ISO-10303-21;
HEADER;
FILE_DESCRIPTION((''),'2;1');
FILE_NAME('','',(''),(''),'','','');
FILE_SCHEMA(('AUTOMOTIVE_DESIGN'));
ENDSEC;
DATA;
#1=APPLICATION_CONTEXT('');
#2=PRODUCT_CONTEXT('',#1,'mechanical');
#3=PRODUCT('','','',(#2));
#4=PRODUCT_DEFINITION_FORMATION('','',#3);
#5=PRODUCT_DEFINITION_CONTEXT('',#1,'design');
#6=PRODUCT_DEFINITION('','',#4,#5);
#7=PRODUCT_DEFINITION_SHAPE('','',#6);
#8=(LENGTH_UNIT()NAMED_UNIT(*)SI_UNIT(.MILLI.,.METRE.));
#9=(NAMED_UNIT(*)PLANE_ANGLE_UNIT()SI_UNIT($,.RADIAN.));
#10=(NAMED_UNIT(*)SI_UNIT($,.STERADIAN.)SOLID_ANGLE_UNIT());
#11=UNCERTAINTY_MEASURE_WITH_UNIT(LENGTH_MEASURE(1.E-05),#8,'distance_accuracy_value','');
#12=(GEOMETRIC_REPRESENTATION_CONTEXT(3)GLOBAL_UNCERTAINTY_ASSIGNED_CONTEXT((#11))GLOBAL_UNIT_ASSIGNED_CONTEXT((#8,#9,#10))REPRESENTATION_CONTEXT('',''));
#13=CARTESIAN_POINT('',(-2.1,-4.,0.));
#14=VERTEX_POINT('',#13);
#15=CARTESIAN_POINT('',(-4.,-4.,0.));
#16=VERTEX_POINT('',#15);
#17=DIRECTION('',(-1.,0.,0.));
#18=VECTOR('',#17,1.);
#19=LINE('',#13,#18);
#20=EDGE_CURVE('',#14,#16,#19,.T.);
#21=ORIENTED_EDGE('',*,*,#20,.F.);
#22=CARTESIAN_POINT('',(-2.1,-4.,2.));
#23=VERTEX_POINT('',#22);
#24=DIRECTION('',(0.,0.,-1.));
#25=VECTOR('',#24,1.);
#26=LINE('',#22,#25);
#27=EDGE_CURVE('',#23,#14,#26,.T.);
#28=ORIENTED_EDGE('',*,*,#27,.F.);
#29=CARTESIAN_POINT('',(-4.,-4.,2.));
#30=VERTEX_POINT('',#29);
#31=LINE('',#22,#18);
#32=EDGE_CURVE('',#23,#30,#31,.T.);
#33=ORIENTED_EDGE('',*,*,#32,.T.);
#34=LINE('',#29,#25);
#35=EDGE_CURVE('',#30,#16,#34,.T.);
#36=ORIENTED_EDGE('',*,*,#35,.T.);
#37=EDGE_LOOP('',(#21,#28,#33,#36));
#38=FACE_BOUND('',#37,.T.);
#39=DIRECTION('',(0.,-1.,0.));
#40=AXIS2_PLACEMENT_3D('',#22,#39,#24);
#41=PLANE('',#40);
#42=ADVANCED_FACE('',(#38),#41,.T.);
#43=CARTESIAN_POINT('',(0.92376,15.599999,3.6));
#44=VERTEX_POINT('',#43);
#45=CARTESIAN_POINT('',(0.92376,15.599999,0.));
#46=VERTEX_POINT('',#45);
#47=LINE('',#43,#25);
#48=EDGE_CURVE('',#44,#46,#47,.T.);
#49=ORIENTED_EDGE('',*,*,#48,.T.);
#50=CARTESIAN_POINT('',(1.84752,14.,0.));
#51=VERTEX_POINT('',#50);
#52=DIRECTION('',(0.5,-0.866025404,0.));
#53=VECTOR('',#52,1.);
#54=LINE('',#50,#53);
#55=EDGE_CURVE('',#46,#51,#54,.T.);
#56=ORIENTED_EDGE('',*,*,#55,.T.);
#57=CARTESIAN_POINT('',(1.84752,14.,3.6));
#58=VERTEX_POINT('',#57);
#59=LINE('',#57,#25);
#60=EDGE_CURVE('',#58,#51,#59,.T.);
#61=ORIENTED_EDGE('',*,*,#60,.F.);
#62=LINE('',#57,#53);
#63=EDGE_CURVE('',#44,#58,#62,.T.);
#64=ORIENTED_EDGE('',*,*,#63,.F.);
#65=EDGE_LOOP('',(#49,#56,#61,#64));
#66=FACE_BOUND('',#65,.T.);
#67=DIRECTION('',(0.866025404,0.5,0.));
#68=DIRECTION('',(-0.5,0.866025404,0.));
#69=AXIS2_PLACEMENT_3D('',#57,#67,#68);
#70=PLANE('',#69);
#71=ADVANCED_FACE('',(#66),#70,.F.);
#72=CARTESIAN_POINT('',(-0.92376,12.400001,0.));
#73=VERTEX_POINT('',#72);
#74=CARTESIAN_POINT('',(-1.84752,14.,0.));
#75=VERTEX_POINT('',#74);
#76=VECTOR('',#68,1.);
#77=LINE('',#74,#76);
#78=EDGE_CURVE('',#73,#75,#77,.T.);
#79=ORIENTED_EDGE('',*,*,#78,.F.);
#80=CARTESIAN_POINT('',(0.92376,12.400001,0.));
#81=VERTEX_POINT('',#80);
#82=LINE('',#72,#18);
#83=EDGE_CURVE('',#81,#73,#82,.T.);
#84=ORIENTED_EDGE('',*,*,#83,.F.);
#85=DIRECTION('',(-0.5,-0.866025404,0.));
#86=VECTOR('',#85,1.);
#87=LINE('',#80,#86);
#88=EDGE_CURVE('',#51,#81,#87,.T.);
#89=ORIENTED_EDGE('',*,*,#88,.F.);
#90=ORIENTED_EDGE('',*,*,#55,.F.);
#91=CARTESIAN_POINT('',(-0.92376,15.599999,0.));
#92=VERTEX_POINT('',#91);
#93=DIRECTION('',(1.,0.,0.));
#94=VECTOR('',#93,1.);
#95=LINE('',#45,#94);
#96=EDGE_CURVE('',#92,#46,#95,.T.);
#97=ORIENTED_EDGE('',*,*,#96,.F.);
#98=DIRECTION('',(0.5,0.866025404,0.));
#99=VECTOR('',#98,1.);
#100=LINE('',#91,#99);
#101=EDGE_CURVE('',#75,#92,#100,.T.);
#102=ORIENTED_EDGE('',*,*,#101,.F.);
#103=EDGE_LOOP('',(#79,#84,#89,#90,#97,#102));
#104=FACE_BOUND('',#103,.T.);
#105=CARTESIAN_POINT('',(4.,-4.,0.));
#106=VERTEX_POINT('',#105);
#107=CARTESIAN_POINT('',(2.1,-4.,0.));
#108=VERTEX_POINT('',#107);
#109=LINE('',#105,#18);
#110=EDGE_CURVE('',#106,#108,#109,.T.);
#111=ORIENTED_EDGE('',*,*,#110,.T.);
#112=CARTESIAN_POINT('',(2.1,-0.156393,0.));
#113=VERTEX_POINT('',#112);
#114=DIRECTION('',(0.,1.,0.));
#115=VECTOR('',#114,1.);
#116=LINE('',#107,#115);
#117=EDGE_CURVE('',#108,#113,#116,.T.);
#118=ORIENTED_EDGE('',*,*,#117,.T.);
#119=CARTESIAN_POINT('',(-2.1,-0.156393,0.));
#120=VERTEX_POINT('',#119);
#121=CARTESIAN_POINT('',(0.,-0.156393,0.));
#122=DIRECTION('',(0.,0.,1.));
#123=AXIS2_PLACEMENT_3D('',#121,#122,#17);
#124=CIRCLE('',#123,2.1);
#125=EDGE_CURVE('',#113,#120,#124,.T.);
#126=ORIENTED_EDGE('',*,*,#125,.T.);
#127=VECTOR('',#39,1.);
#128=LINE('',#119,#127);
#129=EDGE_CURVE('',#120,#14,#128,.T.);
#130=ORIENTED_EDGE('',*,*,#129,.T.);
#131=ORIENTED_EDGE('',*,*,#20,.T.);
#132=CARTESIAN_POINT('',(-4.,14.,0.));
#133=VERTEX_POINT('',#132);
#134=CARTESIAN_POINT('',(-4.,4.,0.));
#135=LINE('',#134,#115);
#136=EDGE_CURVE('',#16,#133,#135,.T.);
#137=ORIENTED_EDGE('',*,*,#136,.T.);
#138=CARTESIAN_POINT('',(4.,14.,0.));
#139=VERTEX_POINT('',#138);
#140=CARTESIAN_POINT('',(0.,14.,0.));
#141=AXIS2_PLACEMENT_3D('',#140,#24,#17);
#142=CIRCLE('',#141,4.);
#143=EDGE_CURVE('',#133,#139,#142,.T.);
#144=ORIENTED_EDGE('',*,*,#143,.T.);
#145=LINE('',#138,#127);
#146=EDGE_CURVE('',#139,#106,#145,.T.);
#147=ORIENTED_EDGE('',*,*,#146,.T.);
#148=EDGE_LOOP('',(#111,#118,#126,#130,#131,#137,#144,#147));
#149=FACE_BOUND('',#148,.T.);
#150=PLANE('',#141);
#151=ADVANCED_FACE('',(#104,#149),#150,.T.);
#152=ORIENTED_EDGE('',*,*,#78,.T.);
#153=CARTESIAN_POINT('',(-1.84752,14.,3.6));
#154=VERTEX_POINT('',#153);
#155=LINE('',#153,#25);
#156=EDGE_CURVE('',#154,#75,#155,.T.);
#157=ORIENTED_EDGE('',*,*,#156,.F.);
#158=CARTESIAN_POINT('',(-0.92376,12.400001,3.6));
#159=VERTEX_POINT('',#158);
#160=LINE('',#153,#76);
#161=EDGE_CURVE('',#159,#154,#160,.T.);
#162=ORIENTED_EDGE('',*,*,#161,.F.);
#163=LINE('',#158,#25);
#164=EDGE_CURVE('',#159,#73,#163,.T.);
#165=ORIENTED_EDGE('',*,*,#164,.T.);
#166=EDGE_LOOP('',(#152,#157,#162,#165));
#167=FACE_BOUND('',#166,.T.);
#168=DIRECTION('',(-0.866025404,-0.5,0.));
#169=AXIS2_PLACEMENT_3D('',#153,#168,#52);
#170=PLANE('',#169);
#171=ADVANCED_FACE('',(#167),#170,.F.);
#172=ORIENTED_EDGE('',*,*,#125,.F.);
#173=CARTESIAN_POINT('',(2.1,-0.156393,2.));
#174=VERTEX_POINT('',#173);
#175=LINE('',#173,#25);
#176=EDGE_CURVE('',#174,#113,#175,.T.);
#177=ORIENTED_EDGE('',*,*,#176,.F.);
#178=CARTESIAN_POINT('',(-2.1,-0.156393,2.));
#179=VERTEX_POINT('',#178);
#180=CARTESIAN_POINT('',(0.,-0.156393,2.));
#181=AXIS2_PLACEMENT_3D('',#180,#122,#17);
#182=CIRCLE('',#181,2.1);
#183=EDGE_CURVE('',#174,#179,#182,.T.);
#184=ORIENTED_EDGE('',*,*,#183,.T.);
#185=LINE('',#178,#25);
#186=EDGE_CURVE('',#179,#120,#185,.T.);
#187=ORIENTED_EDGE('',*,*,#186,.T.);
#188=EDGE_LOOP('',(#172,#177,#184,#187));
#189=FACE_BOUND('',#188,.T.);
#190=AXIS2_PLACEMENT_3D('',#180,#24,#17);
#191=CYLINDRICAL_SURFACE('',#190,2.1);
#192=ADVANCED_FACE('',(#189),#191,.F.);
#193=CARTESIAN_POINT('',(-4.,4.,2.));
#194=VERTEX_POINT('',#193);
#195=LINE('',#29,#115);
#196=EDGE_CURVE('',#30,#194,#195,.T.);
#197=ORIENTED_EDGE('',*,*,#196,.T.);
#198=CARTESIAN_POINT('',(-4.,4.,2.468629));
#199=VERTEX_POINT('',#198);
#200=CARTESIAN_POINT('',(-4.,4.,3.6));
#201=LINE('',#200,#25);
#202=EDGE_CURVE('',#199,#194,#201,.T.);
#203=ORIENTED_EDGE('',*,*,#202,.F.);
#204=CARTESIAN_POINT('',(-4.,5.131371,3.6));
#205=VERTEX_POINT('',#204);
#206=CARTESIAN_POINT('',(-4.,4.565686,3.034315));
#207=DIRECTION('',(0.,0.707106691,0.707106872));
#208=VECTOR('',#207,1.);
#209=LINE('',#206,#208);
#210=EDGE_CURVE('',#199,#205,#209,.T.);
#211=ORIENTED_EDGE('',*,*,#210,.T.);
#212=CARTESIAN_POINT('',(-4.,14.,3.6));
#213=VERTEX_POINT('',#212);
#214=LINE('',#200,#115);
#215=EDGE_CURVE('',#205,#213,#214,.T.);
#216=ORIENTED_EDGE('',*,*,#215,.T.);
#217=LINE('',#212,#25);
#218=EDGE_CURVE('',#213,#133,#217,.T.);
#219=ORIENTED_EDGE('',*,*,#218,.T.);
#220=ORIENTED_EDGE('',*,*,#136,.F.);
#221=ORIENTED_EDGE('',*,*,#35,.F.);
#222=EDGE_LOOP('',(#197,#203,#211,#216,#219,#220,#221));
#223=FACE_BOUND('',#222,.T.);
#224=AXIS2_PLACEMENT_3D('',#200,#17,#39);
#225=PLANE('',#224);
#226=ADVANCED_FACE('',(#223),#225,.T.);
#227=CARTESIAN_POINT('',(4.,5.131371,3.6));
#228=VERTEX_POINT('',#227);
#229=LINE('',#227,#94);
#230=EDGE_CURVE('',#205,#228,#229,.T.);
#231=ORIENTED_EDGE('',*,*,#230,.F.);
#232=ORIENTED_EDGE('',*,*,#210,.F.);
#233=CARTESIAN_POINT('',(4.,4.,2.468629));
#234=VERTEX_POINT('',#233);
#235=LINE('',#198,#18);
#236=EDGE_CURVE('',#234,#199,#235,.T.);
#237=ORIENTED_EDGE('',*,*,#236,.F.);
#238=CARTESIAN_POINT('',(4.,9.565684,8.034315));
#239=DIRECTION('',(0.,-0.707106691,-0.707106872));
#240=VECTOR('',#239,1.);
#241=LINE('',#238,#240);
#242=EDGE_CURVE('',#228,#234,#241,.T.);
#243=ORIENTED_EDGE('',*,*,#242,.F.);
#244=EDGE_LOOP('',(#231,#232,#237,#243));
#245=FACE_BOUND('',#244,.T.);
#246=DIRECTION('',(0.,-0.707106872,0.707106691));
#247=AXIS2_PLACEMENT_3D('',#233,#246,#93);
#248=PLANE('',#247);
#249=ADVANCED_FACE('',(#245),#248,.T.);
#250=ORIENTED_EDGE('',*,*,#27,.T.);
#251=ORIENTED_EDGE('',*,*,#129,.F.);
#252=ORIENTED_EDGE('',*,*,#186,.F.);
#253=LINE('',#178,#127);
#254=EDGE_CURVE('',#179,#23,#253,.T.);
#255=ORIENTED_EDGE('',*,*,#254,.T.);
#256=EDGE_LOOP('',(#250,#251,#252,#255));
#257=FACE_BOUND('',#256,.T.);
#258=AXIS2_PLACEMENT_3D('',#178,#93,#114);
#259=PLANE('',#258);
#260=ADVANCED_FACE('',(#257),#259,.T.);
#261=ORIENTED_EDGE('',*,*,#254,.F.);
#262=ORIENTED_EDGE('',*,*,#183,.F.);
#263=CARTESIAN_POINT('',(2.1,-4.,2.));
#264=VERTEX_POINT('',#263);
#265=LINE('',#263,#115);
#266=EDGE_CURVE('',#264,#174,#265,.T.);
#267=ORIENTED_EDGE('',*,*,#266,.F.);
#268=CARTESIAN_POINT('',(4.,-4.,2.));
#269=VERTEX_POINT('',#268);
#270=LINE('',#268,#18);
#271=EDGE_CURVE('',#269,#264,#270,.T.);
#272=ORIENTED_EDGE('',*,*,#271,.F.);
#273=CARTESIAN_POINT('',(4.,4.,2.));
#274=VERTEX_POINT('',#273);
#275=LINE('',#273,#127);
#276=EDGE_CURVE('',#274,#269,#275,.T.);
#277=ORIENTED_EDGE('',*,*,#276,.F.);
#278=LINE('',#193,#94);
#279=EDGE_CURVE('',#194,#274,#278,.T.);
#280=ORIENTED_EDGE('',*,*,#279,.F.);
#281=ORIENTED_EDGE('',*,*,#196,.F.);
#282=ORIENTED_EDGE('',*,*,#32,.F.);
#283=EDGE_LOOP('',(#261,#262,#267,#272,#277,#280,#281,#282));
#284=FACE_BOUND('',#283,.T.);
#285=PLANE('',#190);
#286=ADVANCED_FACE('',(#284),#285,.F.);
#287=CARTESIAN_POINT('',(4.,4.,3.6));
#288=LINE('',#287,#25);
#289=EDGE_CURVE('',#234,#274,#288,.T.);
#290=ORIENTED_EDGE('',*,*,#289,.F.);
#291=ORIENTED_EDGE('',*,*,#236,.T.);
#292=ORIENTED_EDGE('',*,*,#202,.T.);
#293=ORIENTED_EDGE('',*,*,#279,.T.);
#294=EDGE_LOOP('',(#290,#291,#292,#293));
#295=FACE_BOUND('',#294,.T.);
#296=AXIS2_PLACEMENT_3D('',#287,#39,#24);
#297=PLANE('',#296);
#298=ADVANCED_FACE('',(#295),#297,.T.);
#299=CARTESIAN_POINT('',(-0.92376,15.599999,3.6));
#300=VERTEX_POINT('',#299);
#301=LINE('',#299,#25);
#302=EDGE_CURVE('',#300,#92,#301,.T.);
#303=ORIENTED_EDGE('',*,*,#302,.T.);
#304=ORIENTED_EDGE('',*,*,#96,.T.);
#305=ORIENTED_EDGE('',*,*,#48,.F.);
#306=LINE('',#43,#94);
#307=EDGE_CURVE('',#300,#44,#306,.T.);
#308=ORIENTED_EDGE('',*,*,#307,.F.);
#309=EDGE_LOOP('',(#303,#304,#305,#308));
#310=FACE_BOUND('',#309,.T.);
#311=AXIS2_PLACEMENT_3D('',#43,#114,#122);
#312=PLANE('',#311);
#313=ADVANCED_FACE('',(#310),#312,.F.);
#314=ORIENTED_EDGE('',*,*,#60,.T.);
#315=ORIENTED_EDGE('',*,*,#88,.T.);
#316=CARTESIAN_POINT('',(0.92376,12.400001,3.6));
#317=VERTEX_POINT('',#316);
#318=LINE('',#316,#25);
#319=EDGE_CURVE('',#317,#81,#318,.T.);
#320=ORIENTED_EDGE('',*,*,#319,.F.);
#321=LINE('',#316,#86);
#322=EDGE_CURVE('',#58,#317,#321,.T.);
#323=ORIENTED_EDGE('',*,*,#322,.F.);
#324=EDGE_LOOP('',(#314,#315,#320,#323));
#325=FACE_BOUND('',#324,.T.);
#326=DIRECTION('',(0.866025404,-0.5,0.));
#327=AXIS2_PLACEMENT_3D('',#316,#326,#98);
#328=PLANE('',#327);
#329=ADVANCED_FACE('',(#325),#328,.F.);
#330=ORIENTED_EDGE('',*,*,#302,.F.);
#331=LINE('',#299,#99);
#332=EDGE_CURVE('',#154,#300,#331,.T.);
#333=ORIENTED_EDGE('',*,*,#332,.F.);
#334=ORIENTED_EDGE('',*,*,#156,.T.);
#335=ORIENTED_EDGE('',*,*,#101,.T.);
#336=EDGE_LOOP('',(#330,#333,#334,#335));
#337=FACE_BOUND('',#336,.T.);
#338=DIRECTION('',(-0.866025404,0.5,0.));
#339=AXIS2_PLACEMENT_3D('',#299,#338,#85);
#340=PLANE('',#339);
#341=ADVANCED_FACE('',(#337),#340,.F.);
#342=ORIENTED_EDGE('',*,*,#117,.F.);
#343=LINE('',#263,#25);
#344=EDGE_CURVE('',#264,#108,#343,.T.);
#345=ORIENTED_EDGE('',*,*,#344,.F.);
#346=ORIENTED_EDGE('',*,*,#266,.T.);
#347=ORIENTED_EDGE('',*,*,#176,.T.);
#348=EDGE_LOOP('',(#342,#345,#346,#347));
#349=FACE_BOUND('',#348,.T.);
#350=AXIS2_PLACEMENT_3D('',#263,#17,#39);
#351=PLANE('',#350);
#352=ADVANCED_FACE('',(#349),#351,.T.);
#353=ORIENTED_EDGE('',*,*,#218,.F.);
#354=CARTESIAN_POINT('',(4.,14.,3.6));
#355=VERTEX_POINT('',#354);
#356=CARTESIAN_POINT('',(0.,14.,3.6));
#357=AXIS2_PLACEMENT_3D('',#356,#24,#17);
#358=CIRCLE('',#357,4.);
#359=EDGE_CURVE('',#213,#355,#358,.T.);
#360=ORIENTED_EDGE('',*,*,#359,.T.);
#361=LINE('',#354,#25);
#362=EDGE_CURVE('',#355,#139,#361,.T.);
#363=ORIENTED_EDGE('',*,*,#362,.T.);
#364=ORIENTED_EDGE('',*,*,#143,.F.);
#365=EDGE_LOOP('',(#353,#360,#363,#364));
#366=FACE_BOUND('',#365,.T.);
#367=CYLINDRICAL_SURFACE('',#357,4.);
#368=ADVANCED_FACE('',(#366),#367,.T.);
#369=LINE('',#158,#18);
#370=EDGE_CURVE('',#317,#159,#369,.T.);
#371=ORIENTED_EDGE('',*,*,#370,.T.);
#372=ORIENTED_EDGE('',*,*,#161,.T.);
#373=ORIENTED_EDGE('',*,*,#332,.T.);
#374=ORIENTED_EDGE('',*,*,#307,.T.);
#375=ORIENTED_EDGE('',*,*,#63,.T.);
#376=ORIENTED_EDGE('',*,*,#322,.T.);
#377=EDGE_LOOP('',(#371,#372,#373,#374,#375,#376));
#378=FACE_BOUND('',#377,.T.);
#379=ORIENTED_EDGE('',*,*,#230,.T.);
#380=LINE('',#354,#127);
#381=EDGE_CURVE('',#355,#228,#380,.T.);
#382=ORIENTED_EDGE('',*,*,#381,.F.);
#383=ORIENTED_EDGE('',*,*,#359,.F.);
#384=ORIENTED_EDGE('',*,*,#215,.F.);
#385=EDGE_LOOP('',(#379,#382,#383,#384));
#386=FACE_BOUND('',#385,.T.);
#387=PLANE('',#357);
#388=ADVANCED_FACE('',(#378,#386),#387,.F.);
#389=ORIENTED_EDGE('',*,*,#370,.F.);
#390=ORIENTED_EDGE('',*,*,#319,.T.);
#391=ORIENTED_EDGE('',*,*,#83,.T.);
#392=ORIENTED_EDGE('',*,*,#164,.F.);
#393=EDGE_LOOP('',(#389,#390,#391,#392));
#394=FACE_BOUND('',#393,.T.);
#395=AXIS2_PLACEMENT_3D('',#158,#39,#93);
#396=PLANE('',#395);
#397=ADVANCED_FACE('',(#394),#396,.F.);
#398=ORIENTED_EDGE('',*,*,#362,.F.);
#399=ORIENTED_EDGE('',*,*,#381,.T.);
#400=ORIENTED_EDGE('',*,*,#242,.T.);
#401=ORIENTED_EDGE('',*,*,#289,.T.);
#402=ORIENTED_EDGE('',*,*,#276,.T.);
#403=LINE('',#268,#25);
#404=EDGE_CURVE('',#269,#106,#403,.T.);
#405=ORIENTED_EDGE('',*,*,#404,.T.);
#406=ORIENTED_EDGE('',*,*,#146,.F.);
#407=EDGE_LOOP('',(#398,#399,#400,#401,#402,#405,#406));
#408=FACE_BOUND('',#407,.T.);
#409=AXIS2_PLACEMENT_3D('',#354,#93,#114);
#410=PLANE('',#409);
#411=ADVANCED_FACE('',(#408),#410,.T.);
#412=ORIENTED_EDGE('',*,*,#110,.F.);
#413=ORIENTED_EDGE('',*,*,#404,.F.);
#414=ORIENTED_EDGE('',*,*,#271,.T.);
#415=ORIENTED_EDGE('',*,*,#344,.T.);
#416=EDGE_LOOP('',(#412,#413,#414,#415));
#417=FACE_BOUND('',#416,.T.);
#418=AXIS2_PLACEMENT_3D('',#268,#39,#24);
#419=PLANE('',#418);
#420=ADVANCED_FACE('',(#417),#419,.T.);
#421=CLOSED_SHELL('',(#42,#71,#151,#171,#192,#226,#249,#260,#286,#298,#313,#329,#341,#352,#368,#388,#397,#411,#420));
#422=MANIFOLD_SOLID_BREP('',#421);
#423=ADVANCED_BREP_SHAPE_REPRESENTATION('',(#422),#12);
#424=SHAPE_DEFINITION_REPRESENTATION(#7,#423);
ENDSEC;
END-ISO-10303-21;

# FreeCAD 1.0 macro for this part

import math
import FreeCAD as App
import Part
import Sketcher
from FreeCAD import Vector
Q = App.Units.Quantity


def edges_at(feature, points):
    """Names of the edges that pass closest to the given points."""
    edges = feature.Shape.Edges
    near = lambda p: min(range(len(edges)), key=lambda i: edges[i].distToShape(Part.Vertex(*p))[0])
    return sorted({f"Edge{near(p) + 1}" for p in points})


def add_polygon(sketch, points):
    """Adds a closed chain of lines whose ends are joined by coincident constraints."""
    first, n = sketch.GeometryCount, len(points)
    for a, b in zip(points, points[1:] + points[:1]):
        sketch.addGeometry(Part.LineSegment(App.Vector(*a, 0), App.Vector(*b, 0)), False)
    for i in range(n):
        sketch.addConstraint(Sketcher.Constraint("Coincident", first + i, 2, first + (i + 1) % n, 1))

doc = App.newDocument("Part")
body = doc.addObject("PartDesign::Body", "Body")

# Sketch on XY plane
sketch1 = doc.addObject("Sketcher::SketchObject", "Sketch")
body.addObject(sketch1)
sketch1.AttachmentSupport = (doc.XY_Plane, [""])
sketch1.MapMode = "FlatFace"
sketch1.addGeometry(Part.LineSegment(Vector(4, 14, 0), Vector(4, 4, 0)), False)  # 0
sketch1.addGeometry(Part.LineSegment(Vector(4, 4, 0), Vector(-4, 4, 0)), False)  # 1
sketch1.addGeometry(Part.LineSegment(Vector(-4, 4, 0), Vector(-4, 14, 0)), False)  # 2
sketch1.addGeometry(Part.ArcOfCircle(Part.Circle(Vector(0, 14, 0), Vector(0, 0, 1), 4), math.radians(0), math.radians(180)), False)  # 3
add_polygon(sketch1, [(-0.9, 12.4), (0.9, 12.4), (1.8, 14), (0.9, 15.6), (-0.9, 15.6), (-1.8, 14)])  # lines 4-9
sketch1.addConstraint(Sketcher.Constraint("Coincident", 0, 2, 1, 1))
sketch1.addConstraint(Sketcher.Constraint("Coincident", 1, 2, 2, 1))
sketch1.addConstraint(Sketcher.Constraint("Tangent", 2, 2, 3, 2))
sketch1.addConstraint(Sketcher.Constraint("Tangent", 3, 1, 0, 1))
sketch1.addConstraint(Sketcher.Constraint("Vertical", 0))
sketch1.addConstraint(Sketcher.Constraint("Horizontal", 1))
sketch1.addConstraint(Sketcher.Constraint("Vertical", 2))
sketch1.addConstraint(Sketcher.Constraint("Horizontal", 4))
sketch1.addConstraint(Sketcher.Constraint("Horizontal", 7))
sketch1.addConstraint(Sketcher.Constraint("Symmetric", 5, 2, 8, 2, -2))
sketch1.addConstraint(Sketcher.Constraint("PointOnObject", 3, 3, -2))
sketch1.addConstraint(Sketcher.Constraint("Parallel", 5, 8))
sketch1.addConstraint(Sketcher.Constraint("Parallel", 6, 9))
sketch1.addConstraint(Sketcher.Constraint("Horizontal", 3, 1, 5, 2))
sketch1.addConstraint(Sketcher.Constraint("Vertical", 4, 2, 6, 2))
sketch1.addConstraint(Sketcher.Constraint("Vertical", 7, 2, 9, 2))
sketch1.addConstraint(Sketcher.Constraint("Radius", 3, Q("4 mm")))
sketch1.addConstraint(Sketcher.Constraint("DistanceY", 0, 2, 0, 1, Q("10 mm")))
sketch1.addConstraint(Sketcher.Constraint("Angle", 5, Q("60 deg")))
sketch1.addConstraint(Sketcher.Constraint("DistanceY", -1, 1, 3, 3, Q("14 mm")))
sketch1.addConstraint(Sketcher.Constraint("DistanceY", -1, 1, 4, 2, Q("12.400001 mm")))
sketch1.addConstraint(Sketcher.Constraint("DistanceX", 4, 1, 4, 2, Q("1.84752 mm")))
pad1 = doc.addObject("PartDesign::Pad", "Pad")
body.addObject(pad1)
pad1.Profile = sketch1
pad1.Length = 3.6
doc.recompute()

chamfer = doc.addObject("PartDesign::Chamfer", "Chamfer")
body.addObject(chamfer)
chamfer.Base = (pad1, edges_at(pad1, [(0, 4, 3.6)]))
chamfer.ChamferType = "Two distances"
chamfer.Size = 1.131371
chamfer.Size2 = 1.131371

# Sketch on XY plane
sketch2 = doc.addObject("Sketcher::SketchObject", "Sketch001")
body.addObject(sketch2)
sketch2.AttachmentSupport = (doc.XY_Plane, [""])
sketch2.MapMode = "FlatFace"
sketch2.addGeometry(Part.LineSegment(Vector(4, -4, 0), Vector(2.1, -4, 0)), False)
sketch2.addGeometry(Part.LineSegment(Vector(2.1, -4, 0), Vector(2.1, -0.2, 0)), False)
sketch2.addGeometry(Part.ArcOfCircle(Part.Circle(Vector(0, -0.2, 0), Vector(0, 0, 1), 2.1), math.radians(0), math.radians(180)), False)
sketch2.addGeometry(Part.LineSegment(Vector(-2.1, -0.2, 0), Vector(-2.1, -4, 0)), False)
sketch2.addGeometry(Part.LineSegment(Vector(-2.1, -4, 0), Vector(-4, -4, 0)), False)
sketch2.addGeometry(Part.LineSegment(Vector(-4, -4, 0), Vector(-4, 4, 0)), False)
sketch2.addGeometry(Part.LineSegment(Vector(-4, 4, 0), Vector(4, 4, 0)), False)
sketch2.addGeometry(Part.LineSegment(Vector(4, 4, 0), Vector(4, -4, 0)), False)
sketch2.addConstraint(Sketcher.Constraint("Coincident", 0, 2, 1, 1))
sketch2.addConstraint(Sketcher.Constraint("Tangent", 1, 2, 2, 1))
sketch2.addConstraint(Sketcher.Constraint("Tangent", 2, 2, 3, 1))
sketch2.addConstraint(Sketcher.Constraint("Coincident", 3, 2, 4, 1))
sketch2.addConstraint(Sketcher.Constraint("Coincident", 4, 2, 5, 1))
sketch2.addConstraint(Sketcher.Constraint("Coincident", 5, 2, 6, 1))
sketch2.addConstraint(Sketcher.Constraint("Coincident", 6, 2, 7, 1))
sketch2.addConstraint(Sketcher.Constraint("Coincident", 7, 2, 0, 1))
sketch2.addConstraint(Sketcher.Constraint("Horizontal", 0))
sketch2.addConstraint(Sketcher.Constraint("Vertical", 1))
sketch2.addConstraint(Sketcher.Constraint("Vertical", 3))
sketch2.addConstraint(Sketcher.Constraint("Horizontal", 4))
sketch2.addConstraint(Sketcher.Constraint("Vertical", 5))
sketch2.addConstraint(Sketcher.Constraint("Horizontal", 6))
sketch2.addConstraint(Sketcher.Constraint("Vertical", 7))
sketch2.addConstraint(Sketcher.Constraint("Symmetric", 4, 2, 6, 2, -1, 1))
sketch2.addConstraint(Sketcher.Constraint("Symmetric", 0, 2, 3, 2, -2))
sketch2.addConstraint(Sketcher.Constraint("Equal", 6, 5))
sketch2.addConstraint(Sketcher.Constraint("Radius", 2, Q("2.1 mm")))
sketch2.addConstraint(Sketcher.Constraint("DistanceX", 6, 1, 6, 2, Q("8 mm")))
sketch2.addConstraint(Sketcher.Constraint("DistanceY", 1, 1, 1, 2, Q("3.843607 mm")))
pad2 = doc.addObject("PartDesign::Pad", "Pad001")
body.addObject(pad2)
pad2.Profile = sketch2
pad2.Length = 2

doc.recompute()
